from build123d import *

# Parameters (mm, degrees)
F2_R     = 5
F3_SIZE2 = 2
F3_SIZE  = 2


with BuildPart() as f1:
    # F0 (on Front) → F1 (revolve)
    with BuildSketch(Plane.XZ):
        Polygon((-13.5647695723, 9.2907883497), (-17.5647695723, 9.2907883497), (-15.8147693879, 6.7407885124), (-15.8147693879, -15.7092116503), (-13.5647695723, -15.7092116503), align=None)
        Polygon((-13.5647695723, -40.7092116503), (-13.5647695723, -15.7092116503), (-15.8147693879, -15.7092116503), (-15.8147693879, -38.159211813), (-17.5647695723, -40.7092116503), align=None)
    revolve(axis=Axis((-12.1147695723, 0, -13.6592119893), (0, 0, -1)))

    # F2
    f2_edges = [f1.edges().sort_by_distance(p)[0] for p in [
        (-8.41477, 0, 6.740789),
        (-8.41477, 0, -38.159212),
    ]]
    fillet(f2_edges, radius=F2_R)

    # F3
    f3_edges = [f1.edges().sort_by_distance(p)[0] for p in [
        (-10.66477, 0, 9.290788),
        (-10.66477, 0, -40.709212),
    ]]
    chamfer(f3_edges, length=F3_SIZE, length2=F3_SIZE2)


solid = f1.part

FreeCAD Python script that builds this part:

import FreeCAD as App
import Part
import Sketcher

V = App.Vector


def edges_at(feature, points):
    """Names of the edges that pass closest to the given points."""
    edges = feature.Shape.Edges
    near = lambda p: min(range(len(edges)), key=lambda i: edges[i].distToShape(Part.Vertex(*p))[0])
    return sorted({f"Edge{near(p) + 1}" for p in points})


def add_polygon(sketch, points):
    """Adds a closed chain of lines whose ends are joined by coincident constraints."""
    first, n = sketch.GeometryCount, len(points)
    for a, b in zip(points, points[1:] + points[:1]):
        sketch.addGeometry(Part.LineSegment(App.Vector(*a, 0), App.Vector(*b, 0)), False)
    for i in range(n):
        sketch.addConstraint(Sketcher.Constraint("Coincident", first + i, 2, first + (i + 1) % n, 1))

doc = App.newDocument("Part")
body = doc.addObject("PartDesign::Body", "Body")

# Sketch on XZ plane
sketch1 = doc.addObject("Sketcher::SketchObject", "Sketch")
body.addObject(sketch1)
sketch1.AttachmentSupport = (doc.XZ_Plane, [""])
sketch1.MapMode = "FlatFace"
add_polygon(sketch1, [(-13.56477, 9.290788), (-17.56477, 9.290788), (-15.814769, 6.740789), (-15.814769, -38.159212), (-17.56477, -40.709212), (-13.56477, -40.709212)])  # lines 0-5
sketch1.addGeometry(Part.LineSegment(V(-12.11477, 9.290788, 0), V(-12.11477, -40.709212, 0)), True)  # axis
sketch1.addConstraint(Sketcher.Constraint("Horizontal", 0))
sketch1.addConstraint(Sketcher.Constraint("Vertical", 2))
sketch1.addConstraint(Sketcher.Constraint("Horizontal", 4))
sketch1.addConstraint(Sketcher.Constraint("Vertical", 5))
sketch1.addConstraint(Sketcher.Constraint("Vertical", 6))
sketch1.addConstraint(Sketcher.Constraint("Horizontal", 5, 2, 6, 1))
sketch1.addConstraint(Sketcher.Constraint("Horizontal", 4, 2, 6, 2))
sketch1.addConstraint(Sketcher.Constraint("Vertical", 0, 2, 3, 2))
sketch1.addConstraint(Sketcher.Constraint("Equal", 1, 3))
sketch1.addConstraint(Sketcher.Constraint("DistanceX", 0, 2, 0, 1, 4.0))
sketch1.addConstraint(Sketcher.Constraint("DistanceY", 5, 1, 5, 2, 50.0))
sketch1.addConstraint(Sketcher.Constraint("DistanceY", 2, 2, 2, 1, 44.9))
sketch1.addConstraint(Sketcher.Constraint("DistanceX", 1, 2, 6, 1, 3.7))
sketch1.addConstraint(Sketcher.Constraint("DistanceX", 0, 2, 1, 2, 1.75))
sketch1.addConstraint(Sketcher.Constraint("DistanceX", 0, 2, -1, 1, 17.56477))
sketch1.addConstraint(Sketcher.Constraint("DistanceY", -1, 1, 0, 2, 9.290788))
revolution = doc.addObject("PartDesign::Revolution", "Revolution")
body.addObject(revolution)
revolution.Profile = sketch1
revolution.ReferenceAxis = (sketch1, ["Axis0"])
revolution.Angle = 360
doc.recompute()

fillet = doc.addObject("PartDesign::Fillet", "Fillet")
body.addObject(fillet)
fillet.Base = (revolution, edges_at(revolution, [(-8.415, 0, 6.741), (-8.415, 0, -38.159)]))
fillet.Radius = 5
doc.recompute()

chamfer = doc.addObject("PartDesign::Chamfer", "Chamfer")
body.addObject(chamfer)
chamfer.Base = (fillet, edges_at(fillet, [(-10.665, 0, 9.291), (-10.665, 0, -40.709)]))
chamfer.ChamferType = "Two distances"
chamfer.Size = 2
chamfer.Size2 = 2

doc.recompute()
